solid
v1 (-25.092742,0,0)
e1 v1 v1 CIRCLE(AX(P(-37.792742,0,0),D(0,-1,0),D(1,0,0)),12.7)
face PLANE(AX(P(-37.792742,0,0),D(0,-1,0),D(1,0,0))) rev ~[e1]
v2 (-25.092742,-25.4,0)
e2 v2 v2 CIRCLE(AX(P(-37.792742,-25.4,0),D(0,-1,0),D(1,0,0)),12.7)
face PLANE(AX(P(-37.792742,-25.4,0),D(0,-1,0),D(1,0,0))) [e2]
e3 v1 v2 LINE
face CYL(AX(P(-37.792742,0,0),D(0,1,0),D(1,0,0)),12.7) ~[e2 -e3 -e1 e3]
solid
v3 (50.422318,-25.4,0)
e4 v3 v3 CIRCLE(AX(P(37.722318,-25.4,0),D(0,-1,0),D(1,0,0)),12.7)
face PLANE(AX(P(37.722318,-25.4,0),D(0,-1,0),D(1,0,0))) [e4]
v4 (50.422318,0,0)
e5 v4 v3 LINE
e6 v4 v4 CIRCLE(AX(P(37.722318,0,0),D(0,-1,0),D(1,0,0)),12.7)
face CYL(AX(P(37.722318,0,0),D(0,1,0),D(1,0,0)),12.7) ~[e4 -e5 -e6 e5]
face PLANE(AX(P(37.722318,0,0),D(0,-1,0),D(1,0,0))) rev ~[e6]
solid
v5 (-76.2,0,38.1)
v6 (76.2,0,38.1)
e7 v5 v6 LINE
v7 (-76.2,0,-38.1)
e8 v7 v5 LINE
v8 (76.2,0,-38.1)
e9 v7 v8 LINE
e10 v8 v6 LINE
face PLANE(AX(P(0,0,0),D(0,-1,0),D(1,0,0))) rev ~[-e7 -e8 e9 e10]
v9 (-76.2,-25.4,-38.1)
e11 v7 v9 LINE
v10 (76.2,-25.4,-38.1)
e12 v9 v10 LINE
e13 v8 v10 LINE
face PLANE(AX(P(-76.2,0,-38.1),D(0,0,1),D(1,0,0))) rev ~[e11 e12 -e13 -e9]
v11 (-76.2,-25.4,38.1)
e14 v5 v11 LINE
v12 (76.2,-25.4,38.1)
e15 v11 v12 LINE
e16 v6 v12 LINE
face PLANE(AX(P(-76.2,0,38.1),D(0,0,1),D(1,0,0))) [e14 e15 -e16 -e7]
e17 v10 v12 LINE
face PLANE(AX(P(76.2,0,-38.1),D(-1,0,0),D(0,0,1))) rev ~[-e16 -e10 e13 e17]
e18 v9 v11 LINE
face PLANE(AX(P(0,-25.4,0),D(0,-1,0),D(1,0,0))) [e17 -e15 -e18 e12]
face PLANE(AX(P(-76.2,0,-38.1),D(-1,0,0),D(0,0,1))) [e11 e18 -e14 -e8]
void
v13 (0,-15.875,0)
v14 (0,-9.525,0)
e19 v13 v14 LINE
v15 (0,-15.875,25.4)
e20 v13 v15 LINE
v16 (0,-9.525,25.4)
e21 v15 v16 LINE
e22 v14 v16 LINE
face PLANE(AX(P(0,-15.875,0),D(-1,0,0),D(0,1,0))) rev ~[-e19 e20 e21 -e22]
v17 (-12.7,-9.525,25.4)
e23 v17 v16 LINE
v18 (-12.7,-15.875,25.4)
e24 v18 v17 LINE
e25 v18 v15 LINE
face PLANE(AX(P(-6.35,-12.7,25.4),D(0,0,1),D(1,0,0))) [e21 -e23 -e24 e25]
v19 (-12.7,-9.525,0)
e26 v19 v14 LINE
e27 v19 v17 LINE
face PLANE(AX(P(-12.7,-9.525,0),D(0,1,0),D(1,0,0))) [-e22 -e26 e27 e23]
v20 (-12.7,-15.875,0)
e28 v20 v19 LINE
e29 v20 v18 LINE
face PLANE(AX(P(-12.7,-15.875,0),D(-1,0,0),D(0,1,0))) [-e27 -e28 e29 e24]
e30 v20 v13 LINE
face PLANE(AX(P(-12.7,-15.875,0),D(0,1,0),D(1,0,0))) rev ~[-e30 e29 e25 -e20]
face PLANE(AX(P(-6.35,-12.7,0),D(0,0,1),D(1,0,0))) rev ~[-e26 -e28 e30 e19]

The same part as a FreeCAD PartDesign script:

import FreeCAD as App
import Part
import Sketcher
from FreeCAD import Vector
Q = App.Units.Quantity

doc = App.newDocument("Part")
body = doc.addObject("PartDesign::Body", "Body")

# Sketch on XZ plane
sketch1 = body.newObject("Sketcher::SketchObject", "Sketch")
sketch1.AttachmentSupport = (doc.getObject("XZ_Plane"), [""])
sketch1.MapMode = "FlatFace"
sketch1.addGeometry(Part.LineSegment(Vector(-76, 38, 0), Vector(-76, -38, 0)), False)
sketch1.addGeometry(Part.LineSegment(Vector(-76, -38, 0), Vector(76, -38, 0)), False)
sketch1.addGeometry(Part.LineSegment(Vector(76, -38, 0), Vector(76, 38, 0)), False)
sketch1.addGeometry(Part.LineSegment(Vector(76, 38, 0), Vector(-76, 38, 0)), False)
sketch1.addConstraint(Sketcher.Constraint("Coincident", 0, 2, 1, 1))
sketch1.addConstraint(Sketcher.Constraint("Coincident", 1, 2, 2, 1))
sketch1.addConstraint(Sketcher.Constraint("Coincident", 2, 2, 3, 1))
sketch1.addConstraint(Sketcher.Constraint("Coincident", 3, 2, 0, 1))
sketch1.addConstraint(Sketcher.Constraint("Vertical", 0))
sketch1.addConstraint(Sketcher.Constraint("Horizontal", 1))
sketch1.addConstraint(Sketcher.Constraint("Vertical", 2))
sketch1.addConstraint(Sketcher.Constraint("Horizontal", 3))
sketch1.addConstraint(Sketcher.Constraint("Symmetric", 0, 2, 2, 2, -1, 1))
sketch1.addConstraint(Sketcher.Constraint("DistanceX", 1, 1, 1, 2, Q("6 in")))
sketch1.addConstraint(Sketcher.Constraint("DistanceY", 0, 2, 0, 1, Q("3 in")))
pad1 = body.newObject("PartDesign::Pad", "Pad")
pad1.Profile = sketch1
pad1.Length = Q("1 in")

# Sketch on XY plane
sketch2 = body.newObject("Sketcher::SketchObject", "Sketch001")
sketch2.AttachmentSupport = (doc.getObject("XY_Plane"), [""])
sketch2.MapMode = "FlatFace"
sketch2.addGeometry(Part.LineSegment(Vector(-13, -10, 0), Vector(-13, -16, 0)), False)
sketch2.addGeometry(Part.LineSegment(Vector(-13, -16, 0), Vector(0, -16, 0)), False)
sketch2.addGeometry(Part.LineSegment(Vector(0, -16, 0), Vector(0, -10, 0)), False)
sketch2.addGeometry(Part.LineSegment(Vector(0, -10, 0), Vector(-13, -10, 0)), False)
sketch2.addConstraint(Sketcher.Constraint("Coincident", 0, 2, 1, 1))
sketch2.addConstraint(Sketcher.Constraint("Coincident", 1, 2, 2, 1))
sketch2.addConstraint(Sketcher.Constraint("Coincident", 2, 2, 3, 1))
sketch2.addConstraint(Sketcher.Constraint("Coincident", 3, 2, 0, 1))
sketch2.addConstraint(Sketcher.Constraint("Vertical", 0))
sketch2.addConstraint(Sketcher.Constraint("Horizontal", 1))
sketch2.addConstraint(Sketcher.Constraint("Vertical", 2))
sketch2.addConstraint(Sketcher.Constraint("Horizontal", 3))
sketch2.addConstraint(Sketcher.Constraint("PointOnObject", 1, 2, -2))
sketch2.addConstraint(Sketcher.Constraint("DistanceX", 1, 1, 1, 2, Q("0.5 in")))
sketch2.addConstraint(Sketcher.Constraint("DistanceY", 0, 2, 0, 1, Q("0.25 in")))
sketch2.addConstraint(Sketcher.Constraint("DistanceY", 0, 2, -1, 1, Q("0.625 in")))
pocket1 = body.newObject("PartDesign::Pocket", "Pocket")
pocket1.Profile = sketch2
pocket1.Length = Q("1 in")
pocket1.Reversed = True
body2 = doc.addObject("PartDesign::Body", "Body001")

# Sketch on XZ plane
sketch3 = body2.newObject("Sketcher::SketchObject", "Sketch002")
sketch3.AttachmentSupport = (doc.getObject("XZ_Plane001"), [""])
sketch3.MapMode = "FlatFace"
sketch3.addGeometry(Part.Circle(Vector(-38, 0, 0), Vector(0, 0, 1), 13), False)
sketch3.addConstraint(Sketcher.Constraint("PointOnObject", 0, 3, -1))
sketch3.addConstraint(Sketcher.Constraint("Diameter", 0, Q("1 in")))
sketch3.addConstraint(Sketcher.Constraint("DistanceX", 0, 3, -1, 1, 37.792742))
pad2 = body2.newObject("PartDesign::Pad", "Pad001")
pad2.Profile = sketch3
pad2.Length = Q("1 in")
body3 = doc.addObject("PartDesign::Body", "Body002")

# Sketch on XZ plane
sketch4 = body3.newObject("Sketcher::SketchObject", "Sketch003")
sketch4.AttachmentSupport = (doc.getObject("XZ_Plane002"), [""])
sketch4.MapMode = "FlatFace"
sketch4.addGeometry(Part.Circle(Vector(38, 0, 0), Vector(0, 0, 1), 13), False)
sketch4.addConstraint(Sketcher.Constraint("PointOnObject", 0, 3, -1))
sketch4.addConstraint(Sketcher.Constraint("Diameter", 0, Q("1 in")))
sketch4.addConstraint(Sketcher.Constraint("DistanceX", -1, 1, 0, 3, 37.722318))
pad3 = body3.newObject("PartDesign::Pad", "Pad002")
pad3.Profile = sketch4
pad3.Length = Q("1 in")

doc.recompute()
